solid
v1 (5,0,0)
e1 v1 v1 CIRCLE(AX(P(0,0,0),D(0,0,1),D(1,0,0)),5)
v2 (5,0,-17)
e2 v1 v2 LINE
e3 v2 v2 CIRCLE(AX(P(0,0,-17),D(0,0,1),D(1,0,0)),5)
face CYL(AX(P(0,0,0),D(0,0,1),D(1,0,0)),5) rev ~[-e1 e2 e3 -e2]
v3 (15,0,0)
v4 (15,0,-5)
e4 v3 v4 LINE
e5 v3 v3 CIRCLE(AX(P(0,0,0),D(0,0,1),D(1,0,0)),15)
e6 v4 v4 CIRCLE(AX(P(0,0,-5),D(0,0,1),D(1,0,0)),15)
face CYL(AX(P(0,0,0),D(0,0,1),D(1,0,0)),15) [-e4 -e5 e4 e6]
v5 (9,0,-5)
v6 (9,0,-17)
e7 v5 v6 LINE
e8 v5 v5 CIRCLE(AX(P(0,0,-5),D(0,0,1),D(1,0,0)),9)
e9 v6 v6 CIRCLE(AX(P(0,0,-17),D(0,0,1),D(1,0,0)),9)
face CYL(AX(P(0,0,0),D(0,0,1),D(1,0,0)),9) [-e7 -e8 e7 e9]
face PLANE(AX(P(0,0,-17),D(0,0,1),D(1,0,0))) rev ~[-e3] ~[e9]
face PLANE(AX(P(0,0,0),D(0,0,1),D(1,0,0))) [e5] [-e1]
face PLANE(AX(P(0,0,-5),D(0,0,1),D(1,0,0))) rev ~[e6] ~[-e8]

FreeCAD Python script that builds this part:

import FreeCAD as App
import Part
import Sketcher
Q = App.Units.Quantity

doc = App.newDocument("Part")
body = doc.addObject("PartDesign::Body", "Body")

sketch1 = body.newObject("Sketcher::SketchObject", "Sketch")
sketch1.AttachmentSupport = (doc.getObject("XY_Plane"), [""])
sketch1.MapMode = "FlatFace"
sketch1.addGeometry(Part.Circle(App.Vector(0, 0, 0), App.Vector(0, 0, 1), 15), False)
sketch1.addConstraint(Sketcher.Constraint("Coincident", 0, 3, -1, 1))
sketch1.addConstraint(Sketcher.Constraint("Diameter", 0, Q("30 mm")))
pad1 = body.newObject("PartDesign::Pad", "Pad")
pad1.Profile = sketch1
pad1.Length = 5
pad1.Reversed = True

sketch2 = body.newObject("Sketcher::SketchObject", "Sketch001")
sketch2.AttachmentSupport = (doc.getObject("XY_Plane"), [""])
sketch2.MapMode = "FlatFace"
sketch2.addGeometry(Part.Circle(App.Vector(0, 0, 0), App.Vector(0, 0, 1), 9), False)
sketch2.addConstraint(Sketcher.Constraint("Coincident", 0, 3, -1, 1))
sketch2.addConstraint(Sketcher.Constraint("Diameter", 0, Q("18 mm")))
pad2 = body.newObject("PartDesign::Pad", "Pad001")
pad2.Profile = sketch2
pad2.Length = 17
pad2.Reversed = True

sketch3 = body.newObject("Sketcher::SketchObject", "Sketch002")
sketch3.AttachmentSupport = (doc.getObject("XY_Plane"), [""])
sketch3.MapMode = "FlatFace"
sketch3.addGeometry(Part.Circle(App.Vector(0, 0, 0), App.Vector(0, 0, 1), 5), False)
sketch3.addConstraint(Sketcher.Constraint("Coincident", 0, 3, -1, 1))
sketch3.addConstraint(Sketcher.Constraint("Diameter", 0, Q("10 mm")))
pocket1 = body.newObject("PartDesign::Pocket", "Pocket")
pocket1.Profile = sketch3
pocket1.Length = 17

doc.recompute()
